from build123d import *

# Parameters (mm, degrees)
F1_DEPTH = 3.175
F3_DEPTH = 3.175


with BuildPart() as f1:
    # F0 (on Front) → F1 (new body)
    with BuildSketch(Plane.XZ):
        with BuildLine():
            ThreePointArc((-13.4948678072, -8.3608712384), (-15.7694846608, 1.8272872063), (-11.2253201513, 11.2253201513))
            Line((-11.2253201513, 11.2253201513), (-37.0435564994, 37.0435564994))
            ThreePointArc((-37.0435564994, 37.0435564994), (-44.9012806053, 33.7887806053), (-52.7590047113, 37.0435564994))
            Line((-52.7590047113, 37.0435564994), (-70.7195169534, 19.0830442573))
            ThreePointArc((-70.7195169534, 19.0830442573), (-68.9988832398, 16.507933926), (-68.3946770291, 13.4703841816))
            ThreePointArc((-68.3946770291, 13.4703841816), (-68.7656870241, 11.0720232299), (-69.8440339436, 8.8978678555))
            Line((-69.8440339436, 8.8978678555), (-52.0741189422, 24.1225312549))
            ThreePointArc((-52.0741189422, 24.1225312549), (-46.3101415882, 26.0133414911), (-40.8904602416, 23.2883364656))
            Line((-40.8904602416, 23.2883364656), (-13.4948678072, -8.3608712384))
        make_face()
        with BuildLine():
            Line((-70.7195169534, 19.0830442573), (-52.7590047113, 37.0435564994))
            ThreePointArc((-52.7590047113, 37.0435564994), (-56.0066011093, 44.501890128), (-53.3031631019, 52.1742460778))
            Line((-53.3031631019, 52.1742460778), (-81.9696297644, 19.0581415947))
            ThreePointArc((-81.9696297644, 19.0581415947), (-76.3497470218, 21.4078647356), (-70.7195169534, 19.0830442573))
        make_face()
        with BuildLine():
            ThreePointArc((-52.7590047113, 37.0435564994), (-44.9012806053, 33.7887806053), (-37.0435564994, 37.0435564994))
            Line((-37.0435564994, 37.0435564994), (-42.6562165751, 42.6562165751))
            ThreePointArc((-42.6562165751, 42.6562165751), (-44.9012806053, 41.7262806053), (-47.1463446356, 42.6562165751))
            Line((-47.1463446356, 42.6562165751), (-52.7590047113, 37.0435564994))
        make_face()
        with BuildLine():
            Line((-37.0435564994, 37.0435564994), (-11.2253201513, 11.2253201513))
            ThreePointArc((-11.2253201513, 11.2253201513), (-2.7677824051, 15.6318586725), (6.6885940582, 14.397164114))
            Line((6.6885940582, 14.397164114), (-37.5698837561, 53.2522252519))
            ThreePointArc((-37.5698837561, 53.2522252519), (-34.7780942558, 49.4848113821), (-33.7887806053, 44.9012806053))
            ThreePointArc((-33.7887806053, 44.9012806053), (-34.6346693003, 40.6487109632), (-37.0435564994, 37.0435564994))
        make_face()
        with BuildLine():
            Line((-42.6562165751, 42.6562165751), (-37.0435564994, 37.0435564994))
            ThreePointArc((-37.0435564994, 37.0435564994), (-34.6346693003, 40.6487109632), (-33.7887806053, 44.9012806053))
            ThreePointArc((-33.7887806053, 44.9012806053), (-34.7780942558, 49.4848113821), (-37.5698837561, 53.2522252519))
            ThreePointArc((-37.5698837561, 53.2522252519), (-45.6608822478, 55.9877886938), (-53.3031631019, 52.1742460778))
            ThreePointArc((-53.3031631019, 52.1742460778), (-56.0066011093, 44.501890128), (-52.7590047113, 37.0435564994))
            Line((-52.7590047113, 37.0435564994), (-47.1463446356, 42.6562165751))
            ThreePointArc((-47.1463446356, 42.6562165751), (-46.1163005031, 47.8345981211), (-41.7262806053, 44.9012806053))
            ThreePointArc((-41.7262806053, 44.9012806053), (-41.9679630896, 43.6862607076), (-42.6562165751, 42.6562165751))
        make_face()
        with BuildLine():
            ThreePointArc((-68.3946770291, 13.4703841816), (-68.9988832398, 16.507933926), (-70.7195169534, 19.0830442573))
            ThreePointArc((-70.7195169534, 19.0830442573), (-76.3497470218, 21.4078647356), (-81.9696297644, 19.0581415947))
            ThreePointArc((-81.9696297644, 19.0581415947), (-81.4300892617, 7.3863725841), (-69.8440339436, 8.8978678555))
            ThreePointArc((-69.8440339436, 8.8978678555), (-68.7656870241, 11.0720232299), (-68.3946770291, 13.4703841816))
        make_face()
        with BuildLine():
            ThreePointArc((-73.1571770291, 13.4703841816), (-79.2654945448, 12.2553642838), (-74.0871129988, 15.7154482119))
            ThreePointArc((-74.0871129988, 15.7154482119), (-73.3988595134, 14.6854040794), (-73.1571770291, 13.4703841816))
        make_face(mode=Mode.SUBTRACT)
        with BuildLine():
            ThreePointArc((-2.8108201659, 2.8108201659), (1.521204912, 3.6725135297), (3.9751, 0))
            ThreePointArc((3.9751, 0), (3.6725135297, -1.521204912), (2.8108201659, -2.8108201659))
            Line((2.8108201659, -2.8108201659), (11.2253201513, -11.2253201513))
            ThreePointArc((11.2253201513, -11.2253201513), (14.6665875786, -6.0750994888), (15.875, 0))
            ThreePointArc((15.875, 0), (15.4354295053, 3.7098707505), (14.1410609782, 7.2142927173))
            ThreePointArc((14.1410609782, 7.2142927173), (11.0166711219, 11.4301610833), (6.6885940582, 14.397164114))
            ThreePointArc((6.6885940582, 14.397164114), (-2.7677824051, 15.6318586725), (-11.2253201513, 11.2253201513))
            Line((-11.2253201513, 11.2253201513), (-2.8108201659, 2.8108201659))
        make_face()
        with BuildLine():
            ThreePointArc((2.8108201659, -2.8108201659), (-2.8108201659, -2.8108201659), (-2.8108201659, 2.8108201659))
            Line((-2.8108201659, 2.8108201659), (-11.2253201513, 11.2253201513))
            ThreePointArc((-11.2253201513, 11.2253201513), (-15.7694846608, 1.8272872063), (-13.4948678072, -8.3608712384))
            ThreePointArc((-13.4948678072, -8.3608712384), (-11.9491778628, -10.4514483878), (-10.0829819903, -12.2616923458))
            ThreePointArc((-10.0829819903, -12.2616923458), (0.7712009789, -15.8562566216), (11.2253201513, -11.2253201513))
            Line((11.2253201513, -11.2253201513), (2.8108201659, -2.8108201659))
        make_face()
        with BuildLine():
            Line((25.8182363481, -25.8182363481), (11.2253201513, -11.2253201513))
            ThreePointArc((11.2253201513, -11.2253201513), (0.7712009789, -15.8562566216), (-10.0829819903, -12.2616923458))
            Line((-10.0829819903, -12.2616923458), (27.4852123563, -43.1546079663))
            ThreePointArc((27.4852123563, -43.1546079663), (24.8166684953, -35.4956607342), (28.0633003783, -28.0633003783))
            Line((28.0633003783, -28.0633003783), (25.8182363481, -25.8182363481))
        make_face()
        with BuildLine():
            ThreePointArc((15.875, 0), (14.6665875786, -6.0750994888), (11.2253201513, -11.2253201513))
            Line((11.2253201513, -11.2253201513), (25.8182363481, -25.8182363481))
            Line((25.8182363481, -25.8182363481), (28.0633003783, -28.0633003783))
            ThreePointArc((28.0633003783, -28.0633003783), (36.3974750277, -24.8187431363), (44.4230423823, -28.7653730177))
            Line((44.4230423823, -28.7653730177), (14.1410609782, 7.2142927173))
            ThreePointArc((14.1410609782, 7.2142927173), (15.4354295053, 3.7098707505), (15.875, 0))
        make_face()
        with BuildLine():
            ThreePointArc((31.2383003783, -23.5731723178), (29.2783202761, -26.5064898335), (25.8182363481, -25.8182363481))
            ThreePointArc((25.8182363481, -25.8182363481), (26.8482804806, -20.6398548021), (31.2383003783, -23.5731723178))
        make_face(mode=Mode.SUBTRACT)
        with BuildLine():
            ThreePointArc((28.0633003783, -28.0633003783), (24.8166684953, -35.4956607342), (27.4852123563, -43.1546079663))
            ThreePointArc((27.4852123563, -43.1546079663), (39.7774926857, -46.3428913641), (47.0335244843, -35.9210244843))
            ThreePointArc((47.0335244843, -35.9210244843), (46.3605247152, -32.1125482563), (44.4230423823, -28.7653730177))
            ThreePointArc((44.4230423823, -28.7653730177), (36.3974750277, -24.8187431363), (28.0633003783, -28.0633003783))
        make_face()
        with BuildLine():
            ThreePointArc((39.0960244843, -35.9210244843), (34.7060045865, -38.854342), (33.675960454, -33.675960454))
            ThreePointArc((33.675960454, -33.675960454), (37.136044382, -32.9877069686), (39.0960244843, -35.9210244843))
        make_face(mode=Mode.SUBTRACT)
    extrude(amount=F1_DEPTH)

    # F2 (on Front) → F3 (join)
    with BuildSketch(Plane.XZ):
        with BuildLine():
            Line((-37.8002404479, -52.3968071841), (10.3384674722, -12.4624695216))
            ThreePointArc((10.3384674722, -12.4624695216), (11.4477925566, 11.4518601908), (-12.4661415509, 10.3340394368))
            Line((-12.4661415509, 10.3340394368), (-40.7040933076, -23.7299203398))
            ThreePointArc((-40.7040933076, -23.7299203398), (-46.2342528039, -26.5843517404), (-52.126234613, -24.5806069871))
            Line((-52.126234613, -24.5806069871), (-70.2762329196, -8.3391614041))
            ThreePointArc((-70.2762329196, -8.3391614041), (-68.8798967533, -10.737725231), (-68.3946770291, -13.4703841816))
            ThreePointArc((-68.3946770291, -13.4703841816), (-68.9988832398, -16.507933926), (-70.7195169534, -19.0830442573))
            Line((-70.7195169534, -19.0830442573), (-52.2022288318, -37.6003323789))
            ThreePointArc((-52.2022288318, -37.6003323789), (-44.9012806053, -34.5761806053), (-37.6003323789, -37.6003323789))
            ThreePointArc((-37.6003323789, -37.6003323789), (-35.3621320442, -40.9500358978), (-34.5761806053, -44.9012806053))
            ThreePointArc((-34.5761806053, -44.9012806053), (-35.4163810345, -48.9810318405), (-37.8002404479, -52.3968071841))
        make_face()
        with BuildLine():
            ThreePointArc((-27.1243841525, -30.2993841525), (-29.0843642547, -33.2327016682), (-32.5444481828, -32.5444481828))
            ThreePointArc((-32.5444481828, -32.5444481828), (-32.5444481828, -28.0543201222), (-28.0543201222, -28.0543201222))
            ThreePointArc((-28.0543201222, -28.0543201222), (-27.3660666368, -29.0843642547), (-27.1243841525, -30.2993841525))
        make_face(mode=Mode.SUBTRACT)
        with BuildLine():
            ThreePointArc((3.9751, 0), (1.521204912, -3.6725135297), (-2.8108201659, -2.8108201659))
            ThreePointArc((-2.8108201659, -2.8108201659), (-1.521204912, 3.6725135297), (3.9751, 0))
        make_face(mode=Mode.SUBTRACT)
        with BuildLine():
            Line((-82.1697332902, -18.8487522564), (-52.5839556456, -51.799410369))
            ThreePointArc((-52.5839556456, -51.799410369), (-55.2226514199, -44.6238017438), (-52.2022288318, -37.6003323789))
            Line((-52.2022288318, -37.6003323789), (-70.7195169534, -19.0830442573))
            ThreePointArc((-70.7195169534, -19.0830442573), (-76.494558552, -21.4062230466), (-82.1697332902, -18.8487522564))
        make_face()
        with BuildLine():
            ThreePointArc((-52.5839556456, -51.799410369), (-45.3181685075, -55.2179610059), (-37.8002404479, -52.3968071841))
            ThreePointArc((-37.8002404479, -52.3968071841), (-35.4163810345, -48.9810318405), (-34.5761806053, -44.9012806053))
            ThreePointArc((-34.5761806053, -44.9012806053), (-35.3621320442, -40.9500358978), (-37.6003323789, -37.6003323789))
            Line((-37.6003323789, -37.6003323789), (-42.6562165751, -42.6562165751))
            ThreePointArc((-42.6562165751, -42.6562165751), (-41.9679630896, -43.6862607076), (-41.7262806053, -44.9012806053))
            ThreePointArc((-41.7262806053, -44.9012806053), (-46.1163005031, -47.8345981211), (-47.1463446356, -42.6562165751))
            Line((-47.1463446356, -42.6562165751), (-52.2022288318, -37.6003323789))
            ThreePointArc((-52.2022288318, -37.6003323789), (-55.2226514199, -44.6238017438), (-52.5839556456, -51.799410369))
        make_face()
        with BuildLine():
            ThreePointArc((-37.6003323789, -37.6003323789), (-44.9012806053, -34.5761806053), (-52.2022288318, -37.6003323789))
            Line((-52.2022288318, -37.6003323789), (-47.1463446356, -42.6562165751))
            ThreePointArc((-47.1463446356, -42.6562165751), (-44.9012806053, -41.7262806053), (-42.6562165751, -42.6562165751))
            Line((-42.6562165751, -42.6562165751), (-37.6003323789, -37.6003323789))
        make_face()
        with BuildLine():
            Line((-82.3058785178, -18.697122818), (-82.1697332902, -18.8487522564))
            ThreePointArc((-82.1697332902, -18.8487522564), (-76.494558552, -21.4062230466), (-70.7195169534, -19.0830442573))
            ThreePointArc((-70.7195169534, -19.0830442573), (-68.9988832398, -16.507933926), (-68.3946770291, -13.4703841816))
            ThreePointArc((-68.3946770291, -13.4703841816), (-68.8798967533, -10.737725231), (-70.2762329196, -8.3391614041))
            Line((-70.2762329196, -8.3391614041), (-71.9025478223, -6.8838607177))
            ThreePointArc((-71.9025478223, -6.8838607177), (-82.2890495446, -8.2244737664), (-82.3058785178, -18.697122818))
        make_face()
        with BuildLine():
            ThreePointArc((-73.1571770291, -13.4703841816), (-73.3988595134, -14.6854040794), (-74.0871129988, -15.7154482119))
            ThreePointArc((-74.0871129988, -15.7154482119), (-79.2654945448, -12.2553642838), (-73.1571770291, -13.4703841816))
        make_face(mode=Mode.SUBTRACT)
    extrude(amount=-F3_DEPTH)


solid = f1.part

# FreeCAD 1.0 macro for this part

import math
import FreeCAD as App
import Part
import Sketcher
from FreeCAD import Vector
Q = App.Units.Quantity

doc = App.newDocument("Part")
body = doc.addObject("PartDesign::Body", "Body")

# Sketch on XZ plane
sketch1 = doc.addObject("Sketcher::SketchObject", "Sketch")
body.addObject(sketch1)
sketch1.AttachmentSupport = (doc.XZ_Plane, [""])
sketch1.MapMode = "FlatFace"
sketch1.addGeometry([
    Part.ArcOfCircle(Part.Circle(Vector(0, 0, 0), Vector(0, 0, 1), 15.9), math.radians(27), math.radians(65)),  # 0
    Part.LineSegment(Vector(6.7, 14.4, 0), Vector(-37.6, 53.3, 0)),  # 1
    Part.ArcOfCircle(Part.Circle(Vector(-44.9, 44.9, 0), Vector(0, 0, 1), 11.1), math.radians(49), math.radians(139)),  # 2
    Part.LineSegment(Vector(-53.3, 52.2, 0), Vector(-82, 19.1, 0)),  # 3
    Part.ArcOfCircle(Part.Circle(Vector(-76.3, 13.5, 0), Vector(0, 0, 1), 7.9), math.radians(135), math.radians(325)),  # 4
    Part.LineSegment(Vector(-69.8, 8.9, 0), Vector(-52.1, 24.1, 0)),  # 5
    Part.ArcOfCircle(Part.Circle(Vector(-46.9, 18.1, 0), Vector(0, 0, 1), 8), math.radians(41), math.radians(131)),  # 6
    Part.LineSegment(Vector(-40.9, 23.3, 0), Vector(-13.5, -8.4, 0)),  # 7
    Part.ArcOfCircle(Part.Circle(Vector(0, 0, 0), Vector(0, 0, 1), 15.9), math.radians(-148.22), math.radians(-129.43)),  # 8
    Part.LineSegment(Vector(-10.1, -12.3, 0), Vector(27.5, -43.2, 0)),  # 9
    Part.ArcOfCircle(Part.Circle(Vector(35.9, -35.9, 0), Vector(0, 0, 1), 11.1), math.radians(-139), math.radians(40)),  # 10
    Part.LineSegment(Vector(44.4, -28.8, 0), Vector(14.1, 7.2, 0)),  # 11
    Part.ArcOfCircle(Part.Circle(Vector(35.9, -35.9, 0), Vector(0, 0, 1), 3.2), math.radians(0), math.radians(135)),  # 12
    Part.ArcOfCircle(Part.Circle(Vector(35.9, -35.9, 0), Vector(0, 0, 1), 3.2), math.radians(135), math.radians(360)),  # 13
    Part.ArcOfCircle(Part.Circle(Vector(28.1, -23.6, 0), Vector(0, 0, 1), 3.2), math.radians(0), math.radians(225)),  # 14
    Part.ArcOfCircle(Part.Circle(Vector(28.1, -23.6, 0), Vector(0, 0, 1), 3.2), math.radians(-135), math.radians(0)),  # 15
    Part.ArcOfCircle(Part.Circle(Vector(0, 0, 0), Vector(0, 0, 1), 4), math.radians(0), math.radians(135)),  # 16
    Part.ArcOfCircle(Part.Circle(Vector(0, 0, 0), Vector(0, 0, 1), 4), math.radians(-45), math.radians(0)),  # 17
    Part.ArcOfCircle(Part.Circle(Vector(0, 0, 0), Vector(0, 0, 1), 4), math.radians(135), math.radians(315)),  # 18
    Part.ArcOfCircle(Part.Circle(Vector(-76.3, 13.5, 0), Vector(0, 0, 1), 3.2), math.radians(0), math.radians(45)),  # 19
    Part.ArcOfCircle(Part.Circle(Vector(-76.3, 13.5, 0), Vector(0, 0, 1), 3.2), math.radians(45), math.radians(360)),  # 20
    Part.ArcOfCircle(Part.Circle(Vector(-44.9, 44.9, 0), Vector(0, 0, 1), 3.2), math.radians(-135), math.radians(-45)),  # 21
    Part.ArcOfCircle(Part.Circle(Vector(-44.9, 44.9, 0), Vector(0, 0, 1), 3.2), math.radians(0), math.radians(225)),  # 22
    Part.ArcOfCircle(Part.Circle(Vector(-44.9, 44.9, 0), Vector(0, 0, 1), 3.2), math.radians(-45), math.radians(0)),  # 23
], False)
sketch1.addConstraint([
    Sketcher.Constraint("Coincident", 0, 2, 1, 1),
    Sketcher.Constraint("Tangent", 1, 2, 2, 1),
    Sketcher.Constraint("Tangent", 2, 2, 3, 1),
    Sketcher.Constraint("Coincident", 3, 2, 4, 1),
    Sketcher.Constraint("Coincident", 4, 2, 5, 1),
    Sketcher.Constraint("Tangent", 5, 2, 6, 2),
    Sketcher.Constraint("Tangent", 6, 1, 7, 1),
    Sketcher.Constraint("Coincident", 7, 2, 8, 1),
    Sketcher.Constraint("Tangent", 8, 2, 9, 1),
    Sketcher.Constraint("Coincident", 9, 2, 10, 1),
    Sketcher.Constraint("Tangent", 10, 2, 11, 1),
    Sketcher.Constraint("Coincident", 11, 2, 0, 1),
    Sketcher.Constraint("Tangent", 12, 1, 13, 2),
    Sketcher.Constraint("Coincident", 13, 1, 12, 2),
    Sketcher.Constraint("Tangent", 14, 1, 15, 2),
    Sketcher.Constraint("Coincident", 15, 1, 14, 2),
    Sketcher.Constraint("Tangent", 16, 1, 17, 2),
    Sketcher.Constraint("Tangent", 17, 1, 18, 2),
    Sketcher.Constraint("Tangent", 18, 1, 16, 2),
    Sketcher.Constraint("Tangent", 19, 1, 20, 2),
    Sketcher.Constraint("Coincident", 20, 1, 19, 2),
    Sketcher.Constraint("Tangent", 21, 1, 22, 2),
    Sketcher.Constraint("Tangent", 22, 1, 23, 2),
    Sketcher.Constraint("Tangent", 23, 1, 21, 2),
    Sketcher.Constraint("Coincident", 0, 3, -1, 1),
    Sketcher.Constraint("Coincident", 8, 3, -1, 1),
    Sketcher.Constraint("Coincident", 16, 3, -1, 1),
    Sketcher.Constraint("Coincident", 12, 3, 10, 3),
    Sketcher.Constraint("Coincident", 19, 3, 4, 3),
    Sketcher.Constraint("Coincident", 21, 3, 2, 3),
    Sketcher.Constraint("Equal", 0, 8),
    Sketcher.Constraint("Equal", 2, 10),
    Sketcher.Constraint("Equal", 13, 14),
    Sketcher.Constraint("Equal", 15, 19),
    Sketcher.Constraint("Equal", 20, 21),
    Sketcher.Constraint("PointOnObject", 16, 1, -1),
    Sketcher.Constraint("Horizontal", 13, 3, 12, 1),
    Sketcher.Constraint("Horizontal", 15, 3, 14, 1),
    Sketcher.Constraint("Horizontal", 20, 3, 19, 1),
    Sketcher.Constraint("Horizontal", 23, 3, 22, 1),
    Sketcher.Constraint("Horizontal", 21, 1, 23, 1),
    Sketcher.Constraint("Radius", 0, Q("0.625 in")),
    Sketcher.Constraint("Radius", 2, Q("0.4375 in")),
    Sketcher.Constraint("Radius", 4, Q("0.3125 in")),
    Sketcher.Constraint("Radius", 6, Q("0.313 in")),
    Sketcher.Constraint("Radius", 12, Q("0.125 in")),
    Sketcher.Constraint("Radius", 16, Q("0.1565 in")),
    Sketcher.Constraint("DistanceX", -1, 1, 14, 3, Q("28.0633 mm")),
    Sketcher.Constraint("DistanceX", 4, 3, 10, 3, Q("112.253202 mm")),
    Sketcher.Constraint("DistanceY", 4, 2, 6, 3, Q("9.187298 mm")),
    Sketcher.Constraint("DistanceY", 10, 2, 14, 3, Q("5.192201 mm")),
    Sketcher.Constraint("Distance", 3, Q("43.800031 mm")),
    Sketcher.Constraint("Distance", 7, Q("41.859179 mm")),
    Sketcher.Constraint("Distance", 9, Q("48.638888 mm")),
    Sketcher.Constraint("DistanceX", 2, 3, -1, 1, Q("44.901281 mm")),
    Sketcher.Constraint("DistanceY", -1, 1, 2, 3, Q("44.901281 mm")),
    Sketcher.Constraint("DistanceX", 6, 3, -1, 1, Q("46.901508 mm")),
    Sketcher.Constraint("DistanceX", 3, 2, -1, 1, Q("81.96963 mm")),
    Sketcher.Constraint("DistanceX", 5, 2, -1, 1, Q("52.074119 mm")),
    Sketcher.Constraint("DistanceY", -1, 1, 5, 2, Q("24.122531 mm")),
    Sketcher.Constraint("DistanceX", 8, 2, -1, 1, Q("10.082982 mm")),
    Sketcher.Constraint("DistanceX", -1, 1, 11, 2, Q("14.141061 mm")),
    Sketcher.Constraint("DistanceX", -1, 1, 13, 1, Q("33.67596 mm")),
    Sketcher.Constraint("DistanceX", -1, 1, 17, 1, Q("2.81082 mm")),
    Sketcher.Constraint("DistanceX", 18, 1, -1, 1, Q("2.81082 mm")),
    Sketcher.Constraint("DistanceY", -1, 1, 20, 1, Q("15.715448 mm")),
    Sketcher.Constraint("DistanceY", 6, 3, 1, 2, Q("35.167059 mm")),
    Sketcher.Constraint("DistanceX", 15, 1, 10, 3, Q("10.102788 mm")),
    Sketcher.Constraint("DistanceX", 2, 2, 21, 1, Q("6.156818 mm")),
])
pad1 = doc.addObject("PartDesign::Pad", "Pad")
body.addObject(pad1)
pad1.Profile = sketch1
pad1.Length = Q("0.125 in")

# Sketch on XZ plane
sketch2 = doc.addObject("Sketcher::SketchObject", "Sketch001")
body.addObject(sketch2)
sketch2.AttachmentSupport = (doc.XZ_Plane, [""])
sketch2.MapMode = "FlatFace"
sketch2.addGeometry([
    Part.LineSegment(Vector(-52.13, -24.58, 0), Vector(-70.28, -8.34, 0)),  # 0
    Part.LineSegment(Vector(-70.28, -8.34, 0), Vector(-71.9, -6.88, 0)),  # 1
    Part.ArcOfCircle(Part.Circle(Vector(-76.33, -13.47, 0), Vector(0, 0, 1), 7.94), math.radians(56), math.radians(221)),  # 2
    Part.LineSegment(Vector(-82.31, -18.7, 0), Vector(-82.17, -18.85, 0)),  # 3
    Part.LineSegment(Vector(-82.17, -18.85, 0), Vector(-52.58, -51.8, 0)),  # 4
    Part.ArcOfCircle(Part.Circle(Vector(-44.9, -44.9, 0), Vector(0, 0, 1), 10.33), math.radians(-138), math.radians(-47)),  # 5
    Part.LineSegment(Vector(-37.8, -52.4, 0), Vector(10.34, -12.46, 0)),  # 6
    Part.ArcOfCircle(Part.Circle(Vector(0, 0, 0), Vector(0, 0, 1), 16.19), math.radians(-50), math.radians(140)),  # 7
    Part.LineSegment(Vector(-12.47, 10.33, 0), Vector(-40.7, -23.73, 0)),  # 8
    Part.ArcOfCircle(Part.Circle(Vector(-46.82, -18.66, 0), Vector(0, 0, 1), 7.95), math.radians(-132), math.radians(-40)),  # 9
    Part.ArcOfCircle(Part.Circle(Vector(-44.9, -44.9, 0), Vector(0, 0, 1), 3.17), math.radians(135), math.radians(360)),  # 10
    Part.ArcOfCircle(Part.Circle(Vector(-44.9, -44.9, 0), Vector(0, 0, 1), 3.17), math.radians(45), math.radians(135)),  # 11
    Part.ArcOfCircle(Part.Circle(Vector(-44.9, -44.9, 0), Vector(0, 0, 1), 3.17), math.radians(0), math.radians(45)),  # 12
    Part.ArcOfCircle(Part.Circle(Vector(-30.3, -30.3, 0), Vector(0, 0, 1), 3.17), math.radians(0), math.radians(45)),  # 13
    Part.ArcOfCircle(Part.Circle(Vector(-30.3, -30.3, 0), Vector(0, 0, 1), 3.17), math.radians(-135), math.radians(0)),  # 14
    Part.ArcOfCircle(Part.Circle(Vector(-30.3, -30.3, 0), Vector(0, 0, 1), 3.17), math.radians(45), math.radians(225)),  # 15
    Part.ArcOfCircle(Part.Circle(Vector(-76.33, -13.47, 0), Vector(0, 0, 1), 3.17), math.radians(0), math.radians(315)),  # 16
    Part.ArcOfCircle(Part.Circle(Vector(-76.33, -13.47, 0), Vector(0, 0, 1), 3.17), math.radians(-45), math.radians(0)),  # 17
    Part.ArcOfCircle(Part.Circle(Vector(0, 0, 0), Vector(0, 0, 1), 3.98), math.radians(0), math.radians(225)),  # 18
    Part.ArcOfCircle(Part.Circle(Vector(0, 0, 0), Vector(0, 0, 1), 3.98), math.radians(-135), math.radians(0)),  # 19
], False)
sketch2.addConstraint([
    Sketcher.Constraint("Coincident", 0, 2, 1, 1),
    Sketcher.Constraint("Coincident", 1, 2, 2, 1),
    Sketcher.Constraint("Coincident", 2, 2, 3, 1),
    Sketcher.Constraint("Coincident", 3, 2, 4, 1),
    Sketcher.Constraint("Tangent", 4, 2, 5, 1),
    Sketcher.Constraint("Coincident", 5, 2, 6, 1),
    Sketcher.Constraint("Tangent", 6, 2, 7, 1),
    Sketcher.Constraint("Tangent", 7, 2, 8, 1),
    Sketcher.Constraint("Tangent", 8, 2, 9, 2),
    Sketcher.Constraint("Tangent", 9, 1, 0, 1),
    Sketcher.Constraint("Tangent", 10, 1, 11, 2),
    Sketcher.Constraint("Tangent", 11, 1, 12, 2),
    Sketcher.Constraint("Tangent", 12, 1, 10, 2),
    Sketcher.Constraint("Tangent", 13, 1, 14, 2),
    Sketcher.Constraint("Tangent", 14, 1, 15, 2),
    Sketcher.Constraint("Tangent", 15, 1, 13, 2),
    Sketcher.Constraint("Tangent", 16, 1, 17, 2),
    Sketcher.Constraint("Coincident", 17, 1, 16, 2),
    Sketcher.Constraint("Tangent", 18, 1, 19, 2),
    Sketcher.Constraint("Coincident", 19, 1, 18, 2),
    Sketcher.Constraint("Coincident", 7, 3, -1, 1),
    Sketcher.Constraint("Coincident", 18, 3, -1, 1),
    Sketcher.Constraint("Coincident", 10, 3, 5, 3),
    Sketcher.Constraint("Coincident", 16, 3, 2, 3),
    Sketcher.Constraint("Equal", 12, 13),
    Sketcher.Constraint("Equal", 15, 16),
    Sketcher.Constraint("PointOnObject", 18, 1, -1),
    Sketcher.Constraint("Parallel", 0, 1),
    Sketcher.Constraint("Parallel", 3, 4),
    Sketcher.Constraint("Horizontal", 10, 1, 11, 1),
    Sketcher.Constraint("Horizontal", 11, 3, 12, 1),
    Sketcher.Constraint("Horizontal", 15, 3, 13, 1),
    Sketcher.Constraint("Horizontal", 17, 3, 16, 1),
    Sketcher.Constraint("Radius", 2, Q("0.3125 in")),
    Sketcher.Constraint("Radius", 9, Q("0.313 in")),
    Sketcher.Constraint("Radius", 10, Q("0.125 in")),
    Sketcher.Constraint("Radius", 5, Q("0.4065 in")),
    Sketcher.Constraint("Radius", 7, Q("0.6375 in")),
    Sketcher.Constraint("Radius", 18, Q("0.1565 in")),
    Sketcher.Constraint("DistanceY", 0, 2, 1, 2, Q("1.455301 mm")),
    Sketcher.Constraint("DistanceX", 2, 2, 2, 3, Q("5.973701 mm")),
    Sketcher.Constraint("Distance", 0, Q("24.355841 mm")),
    Sketcher.Constraint("Distance", 3, Q("0.203782 mm")),
    Sketcher.Constraint("DistanceX", 5, 3, -1, 1, Q("44.901281 mm")),
    Sketcher.Constraint("DistanceY", 5, 3, -1, 1, Q("44.901281 mm")),
    Sketcher.Constraint("DistanceY", 9, 3, -1, 1, Q("18.65611 mm")),
    Sketcher.Constraint("DistanceY", 0, 2, -1, 1, Q("8.339161 mm")),
    Sketcher.Constraint("DistanceX", 2, 2, -1, 1, Q("82.305879 mm")),
    Sketcher.Constraint("DistanceY", 4, 2, -1, 1, Q("51.79941 mm")),
    Sketcher.Constraint("DistanceX", 5, 2, -1, 1, Q("37.80024 mm")),
    Sketcher.Constraint("DistanceX", 14, 1, -1, 1, Q("32.544448 mm")),
    Sketcher.Constraint("DistanceY", 14, 1, -1, 1, Q("32.544448 mm")),
    Sketcher.Constraint("DistanceX", 15, 1, -1, 1, Q("28.05432 mm")),
    Sketcher.Constraint("DistanceY", 17, 1, -1, 1, Q("15.715448 mm")),
    Sketcher.Constraint("DistanceX", 19, 1, -1, 1, Q("2.81082 mm")),
    Sketcher.Constraint("DistanceX", 9, 3, 13, 3, Q("16.52534 mm")),
    Sketcher.Constraint("DistanceX", 4, 2, 10, 1, Q("5.437611 mm")),
])
pad2 = doc.addObject("PartDesign::Pad", "Pad001")
body.addObject(pad2)
pad2.Profile = sketch2
pad2.Length = Q("0.125 in")
pad2.Reversed = True

doc.recompute()
